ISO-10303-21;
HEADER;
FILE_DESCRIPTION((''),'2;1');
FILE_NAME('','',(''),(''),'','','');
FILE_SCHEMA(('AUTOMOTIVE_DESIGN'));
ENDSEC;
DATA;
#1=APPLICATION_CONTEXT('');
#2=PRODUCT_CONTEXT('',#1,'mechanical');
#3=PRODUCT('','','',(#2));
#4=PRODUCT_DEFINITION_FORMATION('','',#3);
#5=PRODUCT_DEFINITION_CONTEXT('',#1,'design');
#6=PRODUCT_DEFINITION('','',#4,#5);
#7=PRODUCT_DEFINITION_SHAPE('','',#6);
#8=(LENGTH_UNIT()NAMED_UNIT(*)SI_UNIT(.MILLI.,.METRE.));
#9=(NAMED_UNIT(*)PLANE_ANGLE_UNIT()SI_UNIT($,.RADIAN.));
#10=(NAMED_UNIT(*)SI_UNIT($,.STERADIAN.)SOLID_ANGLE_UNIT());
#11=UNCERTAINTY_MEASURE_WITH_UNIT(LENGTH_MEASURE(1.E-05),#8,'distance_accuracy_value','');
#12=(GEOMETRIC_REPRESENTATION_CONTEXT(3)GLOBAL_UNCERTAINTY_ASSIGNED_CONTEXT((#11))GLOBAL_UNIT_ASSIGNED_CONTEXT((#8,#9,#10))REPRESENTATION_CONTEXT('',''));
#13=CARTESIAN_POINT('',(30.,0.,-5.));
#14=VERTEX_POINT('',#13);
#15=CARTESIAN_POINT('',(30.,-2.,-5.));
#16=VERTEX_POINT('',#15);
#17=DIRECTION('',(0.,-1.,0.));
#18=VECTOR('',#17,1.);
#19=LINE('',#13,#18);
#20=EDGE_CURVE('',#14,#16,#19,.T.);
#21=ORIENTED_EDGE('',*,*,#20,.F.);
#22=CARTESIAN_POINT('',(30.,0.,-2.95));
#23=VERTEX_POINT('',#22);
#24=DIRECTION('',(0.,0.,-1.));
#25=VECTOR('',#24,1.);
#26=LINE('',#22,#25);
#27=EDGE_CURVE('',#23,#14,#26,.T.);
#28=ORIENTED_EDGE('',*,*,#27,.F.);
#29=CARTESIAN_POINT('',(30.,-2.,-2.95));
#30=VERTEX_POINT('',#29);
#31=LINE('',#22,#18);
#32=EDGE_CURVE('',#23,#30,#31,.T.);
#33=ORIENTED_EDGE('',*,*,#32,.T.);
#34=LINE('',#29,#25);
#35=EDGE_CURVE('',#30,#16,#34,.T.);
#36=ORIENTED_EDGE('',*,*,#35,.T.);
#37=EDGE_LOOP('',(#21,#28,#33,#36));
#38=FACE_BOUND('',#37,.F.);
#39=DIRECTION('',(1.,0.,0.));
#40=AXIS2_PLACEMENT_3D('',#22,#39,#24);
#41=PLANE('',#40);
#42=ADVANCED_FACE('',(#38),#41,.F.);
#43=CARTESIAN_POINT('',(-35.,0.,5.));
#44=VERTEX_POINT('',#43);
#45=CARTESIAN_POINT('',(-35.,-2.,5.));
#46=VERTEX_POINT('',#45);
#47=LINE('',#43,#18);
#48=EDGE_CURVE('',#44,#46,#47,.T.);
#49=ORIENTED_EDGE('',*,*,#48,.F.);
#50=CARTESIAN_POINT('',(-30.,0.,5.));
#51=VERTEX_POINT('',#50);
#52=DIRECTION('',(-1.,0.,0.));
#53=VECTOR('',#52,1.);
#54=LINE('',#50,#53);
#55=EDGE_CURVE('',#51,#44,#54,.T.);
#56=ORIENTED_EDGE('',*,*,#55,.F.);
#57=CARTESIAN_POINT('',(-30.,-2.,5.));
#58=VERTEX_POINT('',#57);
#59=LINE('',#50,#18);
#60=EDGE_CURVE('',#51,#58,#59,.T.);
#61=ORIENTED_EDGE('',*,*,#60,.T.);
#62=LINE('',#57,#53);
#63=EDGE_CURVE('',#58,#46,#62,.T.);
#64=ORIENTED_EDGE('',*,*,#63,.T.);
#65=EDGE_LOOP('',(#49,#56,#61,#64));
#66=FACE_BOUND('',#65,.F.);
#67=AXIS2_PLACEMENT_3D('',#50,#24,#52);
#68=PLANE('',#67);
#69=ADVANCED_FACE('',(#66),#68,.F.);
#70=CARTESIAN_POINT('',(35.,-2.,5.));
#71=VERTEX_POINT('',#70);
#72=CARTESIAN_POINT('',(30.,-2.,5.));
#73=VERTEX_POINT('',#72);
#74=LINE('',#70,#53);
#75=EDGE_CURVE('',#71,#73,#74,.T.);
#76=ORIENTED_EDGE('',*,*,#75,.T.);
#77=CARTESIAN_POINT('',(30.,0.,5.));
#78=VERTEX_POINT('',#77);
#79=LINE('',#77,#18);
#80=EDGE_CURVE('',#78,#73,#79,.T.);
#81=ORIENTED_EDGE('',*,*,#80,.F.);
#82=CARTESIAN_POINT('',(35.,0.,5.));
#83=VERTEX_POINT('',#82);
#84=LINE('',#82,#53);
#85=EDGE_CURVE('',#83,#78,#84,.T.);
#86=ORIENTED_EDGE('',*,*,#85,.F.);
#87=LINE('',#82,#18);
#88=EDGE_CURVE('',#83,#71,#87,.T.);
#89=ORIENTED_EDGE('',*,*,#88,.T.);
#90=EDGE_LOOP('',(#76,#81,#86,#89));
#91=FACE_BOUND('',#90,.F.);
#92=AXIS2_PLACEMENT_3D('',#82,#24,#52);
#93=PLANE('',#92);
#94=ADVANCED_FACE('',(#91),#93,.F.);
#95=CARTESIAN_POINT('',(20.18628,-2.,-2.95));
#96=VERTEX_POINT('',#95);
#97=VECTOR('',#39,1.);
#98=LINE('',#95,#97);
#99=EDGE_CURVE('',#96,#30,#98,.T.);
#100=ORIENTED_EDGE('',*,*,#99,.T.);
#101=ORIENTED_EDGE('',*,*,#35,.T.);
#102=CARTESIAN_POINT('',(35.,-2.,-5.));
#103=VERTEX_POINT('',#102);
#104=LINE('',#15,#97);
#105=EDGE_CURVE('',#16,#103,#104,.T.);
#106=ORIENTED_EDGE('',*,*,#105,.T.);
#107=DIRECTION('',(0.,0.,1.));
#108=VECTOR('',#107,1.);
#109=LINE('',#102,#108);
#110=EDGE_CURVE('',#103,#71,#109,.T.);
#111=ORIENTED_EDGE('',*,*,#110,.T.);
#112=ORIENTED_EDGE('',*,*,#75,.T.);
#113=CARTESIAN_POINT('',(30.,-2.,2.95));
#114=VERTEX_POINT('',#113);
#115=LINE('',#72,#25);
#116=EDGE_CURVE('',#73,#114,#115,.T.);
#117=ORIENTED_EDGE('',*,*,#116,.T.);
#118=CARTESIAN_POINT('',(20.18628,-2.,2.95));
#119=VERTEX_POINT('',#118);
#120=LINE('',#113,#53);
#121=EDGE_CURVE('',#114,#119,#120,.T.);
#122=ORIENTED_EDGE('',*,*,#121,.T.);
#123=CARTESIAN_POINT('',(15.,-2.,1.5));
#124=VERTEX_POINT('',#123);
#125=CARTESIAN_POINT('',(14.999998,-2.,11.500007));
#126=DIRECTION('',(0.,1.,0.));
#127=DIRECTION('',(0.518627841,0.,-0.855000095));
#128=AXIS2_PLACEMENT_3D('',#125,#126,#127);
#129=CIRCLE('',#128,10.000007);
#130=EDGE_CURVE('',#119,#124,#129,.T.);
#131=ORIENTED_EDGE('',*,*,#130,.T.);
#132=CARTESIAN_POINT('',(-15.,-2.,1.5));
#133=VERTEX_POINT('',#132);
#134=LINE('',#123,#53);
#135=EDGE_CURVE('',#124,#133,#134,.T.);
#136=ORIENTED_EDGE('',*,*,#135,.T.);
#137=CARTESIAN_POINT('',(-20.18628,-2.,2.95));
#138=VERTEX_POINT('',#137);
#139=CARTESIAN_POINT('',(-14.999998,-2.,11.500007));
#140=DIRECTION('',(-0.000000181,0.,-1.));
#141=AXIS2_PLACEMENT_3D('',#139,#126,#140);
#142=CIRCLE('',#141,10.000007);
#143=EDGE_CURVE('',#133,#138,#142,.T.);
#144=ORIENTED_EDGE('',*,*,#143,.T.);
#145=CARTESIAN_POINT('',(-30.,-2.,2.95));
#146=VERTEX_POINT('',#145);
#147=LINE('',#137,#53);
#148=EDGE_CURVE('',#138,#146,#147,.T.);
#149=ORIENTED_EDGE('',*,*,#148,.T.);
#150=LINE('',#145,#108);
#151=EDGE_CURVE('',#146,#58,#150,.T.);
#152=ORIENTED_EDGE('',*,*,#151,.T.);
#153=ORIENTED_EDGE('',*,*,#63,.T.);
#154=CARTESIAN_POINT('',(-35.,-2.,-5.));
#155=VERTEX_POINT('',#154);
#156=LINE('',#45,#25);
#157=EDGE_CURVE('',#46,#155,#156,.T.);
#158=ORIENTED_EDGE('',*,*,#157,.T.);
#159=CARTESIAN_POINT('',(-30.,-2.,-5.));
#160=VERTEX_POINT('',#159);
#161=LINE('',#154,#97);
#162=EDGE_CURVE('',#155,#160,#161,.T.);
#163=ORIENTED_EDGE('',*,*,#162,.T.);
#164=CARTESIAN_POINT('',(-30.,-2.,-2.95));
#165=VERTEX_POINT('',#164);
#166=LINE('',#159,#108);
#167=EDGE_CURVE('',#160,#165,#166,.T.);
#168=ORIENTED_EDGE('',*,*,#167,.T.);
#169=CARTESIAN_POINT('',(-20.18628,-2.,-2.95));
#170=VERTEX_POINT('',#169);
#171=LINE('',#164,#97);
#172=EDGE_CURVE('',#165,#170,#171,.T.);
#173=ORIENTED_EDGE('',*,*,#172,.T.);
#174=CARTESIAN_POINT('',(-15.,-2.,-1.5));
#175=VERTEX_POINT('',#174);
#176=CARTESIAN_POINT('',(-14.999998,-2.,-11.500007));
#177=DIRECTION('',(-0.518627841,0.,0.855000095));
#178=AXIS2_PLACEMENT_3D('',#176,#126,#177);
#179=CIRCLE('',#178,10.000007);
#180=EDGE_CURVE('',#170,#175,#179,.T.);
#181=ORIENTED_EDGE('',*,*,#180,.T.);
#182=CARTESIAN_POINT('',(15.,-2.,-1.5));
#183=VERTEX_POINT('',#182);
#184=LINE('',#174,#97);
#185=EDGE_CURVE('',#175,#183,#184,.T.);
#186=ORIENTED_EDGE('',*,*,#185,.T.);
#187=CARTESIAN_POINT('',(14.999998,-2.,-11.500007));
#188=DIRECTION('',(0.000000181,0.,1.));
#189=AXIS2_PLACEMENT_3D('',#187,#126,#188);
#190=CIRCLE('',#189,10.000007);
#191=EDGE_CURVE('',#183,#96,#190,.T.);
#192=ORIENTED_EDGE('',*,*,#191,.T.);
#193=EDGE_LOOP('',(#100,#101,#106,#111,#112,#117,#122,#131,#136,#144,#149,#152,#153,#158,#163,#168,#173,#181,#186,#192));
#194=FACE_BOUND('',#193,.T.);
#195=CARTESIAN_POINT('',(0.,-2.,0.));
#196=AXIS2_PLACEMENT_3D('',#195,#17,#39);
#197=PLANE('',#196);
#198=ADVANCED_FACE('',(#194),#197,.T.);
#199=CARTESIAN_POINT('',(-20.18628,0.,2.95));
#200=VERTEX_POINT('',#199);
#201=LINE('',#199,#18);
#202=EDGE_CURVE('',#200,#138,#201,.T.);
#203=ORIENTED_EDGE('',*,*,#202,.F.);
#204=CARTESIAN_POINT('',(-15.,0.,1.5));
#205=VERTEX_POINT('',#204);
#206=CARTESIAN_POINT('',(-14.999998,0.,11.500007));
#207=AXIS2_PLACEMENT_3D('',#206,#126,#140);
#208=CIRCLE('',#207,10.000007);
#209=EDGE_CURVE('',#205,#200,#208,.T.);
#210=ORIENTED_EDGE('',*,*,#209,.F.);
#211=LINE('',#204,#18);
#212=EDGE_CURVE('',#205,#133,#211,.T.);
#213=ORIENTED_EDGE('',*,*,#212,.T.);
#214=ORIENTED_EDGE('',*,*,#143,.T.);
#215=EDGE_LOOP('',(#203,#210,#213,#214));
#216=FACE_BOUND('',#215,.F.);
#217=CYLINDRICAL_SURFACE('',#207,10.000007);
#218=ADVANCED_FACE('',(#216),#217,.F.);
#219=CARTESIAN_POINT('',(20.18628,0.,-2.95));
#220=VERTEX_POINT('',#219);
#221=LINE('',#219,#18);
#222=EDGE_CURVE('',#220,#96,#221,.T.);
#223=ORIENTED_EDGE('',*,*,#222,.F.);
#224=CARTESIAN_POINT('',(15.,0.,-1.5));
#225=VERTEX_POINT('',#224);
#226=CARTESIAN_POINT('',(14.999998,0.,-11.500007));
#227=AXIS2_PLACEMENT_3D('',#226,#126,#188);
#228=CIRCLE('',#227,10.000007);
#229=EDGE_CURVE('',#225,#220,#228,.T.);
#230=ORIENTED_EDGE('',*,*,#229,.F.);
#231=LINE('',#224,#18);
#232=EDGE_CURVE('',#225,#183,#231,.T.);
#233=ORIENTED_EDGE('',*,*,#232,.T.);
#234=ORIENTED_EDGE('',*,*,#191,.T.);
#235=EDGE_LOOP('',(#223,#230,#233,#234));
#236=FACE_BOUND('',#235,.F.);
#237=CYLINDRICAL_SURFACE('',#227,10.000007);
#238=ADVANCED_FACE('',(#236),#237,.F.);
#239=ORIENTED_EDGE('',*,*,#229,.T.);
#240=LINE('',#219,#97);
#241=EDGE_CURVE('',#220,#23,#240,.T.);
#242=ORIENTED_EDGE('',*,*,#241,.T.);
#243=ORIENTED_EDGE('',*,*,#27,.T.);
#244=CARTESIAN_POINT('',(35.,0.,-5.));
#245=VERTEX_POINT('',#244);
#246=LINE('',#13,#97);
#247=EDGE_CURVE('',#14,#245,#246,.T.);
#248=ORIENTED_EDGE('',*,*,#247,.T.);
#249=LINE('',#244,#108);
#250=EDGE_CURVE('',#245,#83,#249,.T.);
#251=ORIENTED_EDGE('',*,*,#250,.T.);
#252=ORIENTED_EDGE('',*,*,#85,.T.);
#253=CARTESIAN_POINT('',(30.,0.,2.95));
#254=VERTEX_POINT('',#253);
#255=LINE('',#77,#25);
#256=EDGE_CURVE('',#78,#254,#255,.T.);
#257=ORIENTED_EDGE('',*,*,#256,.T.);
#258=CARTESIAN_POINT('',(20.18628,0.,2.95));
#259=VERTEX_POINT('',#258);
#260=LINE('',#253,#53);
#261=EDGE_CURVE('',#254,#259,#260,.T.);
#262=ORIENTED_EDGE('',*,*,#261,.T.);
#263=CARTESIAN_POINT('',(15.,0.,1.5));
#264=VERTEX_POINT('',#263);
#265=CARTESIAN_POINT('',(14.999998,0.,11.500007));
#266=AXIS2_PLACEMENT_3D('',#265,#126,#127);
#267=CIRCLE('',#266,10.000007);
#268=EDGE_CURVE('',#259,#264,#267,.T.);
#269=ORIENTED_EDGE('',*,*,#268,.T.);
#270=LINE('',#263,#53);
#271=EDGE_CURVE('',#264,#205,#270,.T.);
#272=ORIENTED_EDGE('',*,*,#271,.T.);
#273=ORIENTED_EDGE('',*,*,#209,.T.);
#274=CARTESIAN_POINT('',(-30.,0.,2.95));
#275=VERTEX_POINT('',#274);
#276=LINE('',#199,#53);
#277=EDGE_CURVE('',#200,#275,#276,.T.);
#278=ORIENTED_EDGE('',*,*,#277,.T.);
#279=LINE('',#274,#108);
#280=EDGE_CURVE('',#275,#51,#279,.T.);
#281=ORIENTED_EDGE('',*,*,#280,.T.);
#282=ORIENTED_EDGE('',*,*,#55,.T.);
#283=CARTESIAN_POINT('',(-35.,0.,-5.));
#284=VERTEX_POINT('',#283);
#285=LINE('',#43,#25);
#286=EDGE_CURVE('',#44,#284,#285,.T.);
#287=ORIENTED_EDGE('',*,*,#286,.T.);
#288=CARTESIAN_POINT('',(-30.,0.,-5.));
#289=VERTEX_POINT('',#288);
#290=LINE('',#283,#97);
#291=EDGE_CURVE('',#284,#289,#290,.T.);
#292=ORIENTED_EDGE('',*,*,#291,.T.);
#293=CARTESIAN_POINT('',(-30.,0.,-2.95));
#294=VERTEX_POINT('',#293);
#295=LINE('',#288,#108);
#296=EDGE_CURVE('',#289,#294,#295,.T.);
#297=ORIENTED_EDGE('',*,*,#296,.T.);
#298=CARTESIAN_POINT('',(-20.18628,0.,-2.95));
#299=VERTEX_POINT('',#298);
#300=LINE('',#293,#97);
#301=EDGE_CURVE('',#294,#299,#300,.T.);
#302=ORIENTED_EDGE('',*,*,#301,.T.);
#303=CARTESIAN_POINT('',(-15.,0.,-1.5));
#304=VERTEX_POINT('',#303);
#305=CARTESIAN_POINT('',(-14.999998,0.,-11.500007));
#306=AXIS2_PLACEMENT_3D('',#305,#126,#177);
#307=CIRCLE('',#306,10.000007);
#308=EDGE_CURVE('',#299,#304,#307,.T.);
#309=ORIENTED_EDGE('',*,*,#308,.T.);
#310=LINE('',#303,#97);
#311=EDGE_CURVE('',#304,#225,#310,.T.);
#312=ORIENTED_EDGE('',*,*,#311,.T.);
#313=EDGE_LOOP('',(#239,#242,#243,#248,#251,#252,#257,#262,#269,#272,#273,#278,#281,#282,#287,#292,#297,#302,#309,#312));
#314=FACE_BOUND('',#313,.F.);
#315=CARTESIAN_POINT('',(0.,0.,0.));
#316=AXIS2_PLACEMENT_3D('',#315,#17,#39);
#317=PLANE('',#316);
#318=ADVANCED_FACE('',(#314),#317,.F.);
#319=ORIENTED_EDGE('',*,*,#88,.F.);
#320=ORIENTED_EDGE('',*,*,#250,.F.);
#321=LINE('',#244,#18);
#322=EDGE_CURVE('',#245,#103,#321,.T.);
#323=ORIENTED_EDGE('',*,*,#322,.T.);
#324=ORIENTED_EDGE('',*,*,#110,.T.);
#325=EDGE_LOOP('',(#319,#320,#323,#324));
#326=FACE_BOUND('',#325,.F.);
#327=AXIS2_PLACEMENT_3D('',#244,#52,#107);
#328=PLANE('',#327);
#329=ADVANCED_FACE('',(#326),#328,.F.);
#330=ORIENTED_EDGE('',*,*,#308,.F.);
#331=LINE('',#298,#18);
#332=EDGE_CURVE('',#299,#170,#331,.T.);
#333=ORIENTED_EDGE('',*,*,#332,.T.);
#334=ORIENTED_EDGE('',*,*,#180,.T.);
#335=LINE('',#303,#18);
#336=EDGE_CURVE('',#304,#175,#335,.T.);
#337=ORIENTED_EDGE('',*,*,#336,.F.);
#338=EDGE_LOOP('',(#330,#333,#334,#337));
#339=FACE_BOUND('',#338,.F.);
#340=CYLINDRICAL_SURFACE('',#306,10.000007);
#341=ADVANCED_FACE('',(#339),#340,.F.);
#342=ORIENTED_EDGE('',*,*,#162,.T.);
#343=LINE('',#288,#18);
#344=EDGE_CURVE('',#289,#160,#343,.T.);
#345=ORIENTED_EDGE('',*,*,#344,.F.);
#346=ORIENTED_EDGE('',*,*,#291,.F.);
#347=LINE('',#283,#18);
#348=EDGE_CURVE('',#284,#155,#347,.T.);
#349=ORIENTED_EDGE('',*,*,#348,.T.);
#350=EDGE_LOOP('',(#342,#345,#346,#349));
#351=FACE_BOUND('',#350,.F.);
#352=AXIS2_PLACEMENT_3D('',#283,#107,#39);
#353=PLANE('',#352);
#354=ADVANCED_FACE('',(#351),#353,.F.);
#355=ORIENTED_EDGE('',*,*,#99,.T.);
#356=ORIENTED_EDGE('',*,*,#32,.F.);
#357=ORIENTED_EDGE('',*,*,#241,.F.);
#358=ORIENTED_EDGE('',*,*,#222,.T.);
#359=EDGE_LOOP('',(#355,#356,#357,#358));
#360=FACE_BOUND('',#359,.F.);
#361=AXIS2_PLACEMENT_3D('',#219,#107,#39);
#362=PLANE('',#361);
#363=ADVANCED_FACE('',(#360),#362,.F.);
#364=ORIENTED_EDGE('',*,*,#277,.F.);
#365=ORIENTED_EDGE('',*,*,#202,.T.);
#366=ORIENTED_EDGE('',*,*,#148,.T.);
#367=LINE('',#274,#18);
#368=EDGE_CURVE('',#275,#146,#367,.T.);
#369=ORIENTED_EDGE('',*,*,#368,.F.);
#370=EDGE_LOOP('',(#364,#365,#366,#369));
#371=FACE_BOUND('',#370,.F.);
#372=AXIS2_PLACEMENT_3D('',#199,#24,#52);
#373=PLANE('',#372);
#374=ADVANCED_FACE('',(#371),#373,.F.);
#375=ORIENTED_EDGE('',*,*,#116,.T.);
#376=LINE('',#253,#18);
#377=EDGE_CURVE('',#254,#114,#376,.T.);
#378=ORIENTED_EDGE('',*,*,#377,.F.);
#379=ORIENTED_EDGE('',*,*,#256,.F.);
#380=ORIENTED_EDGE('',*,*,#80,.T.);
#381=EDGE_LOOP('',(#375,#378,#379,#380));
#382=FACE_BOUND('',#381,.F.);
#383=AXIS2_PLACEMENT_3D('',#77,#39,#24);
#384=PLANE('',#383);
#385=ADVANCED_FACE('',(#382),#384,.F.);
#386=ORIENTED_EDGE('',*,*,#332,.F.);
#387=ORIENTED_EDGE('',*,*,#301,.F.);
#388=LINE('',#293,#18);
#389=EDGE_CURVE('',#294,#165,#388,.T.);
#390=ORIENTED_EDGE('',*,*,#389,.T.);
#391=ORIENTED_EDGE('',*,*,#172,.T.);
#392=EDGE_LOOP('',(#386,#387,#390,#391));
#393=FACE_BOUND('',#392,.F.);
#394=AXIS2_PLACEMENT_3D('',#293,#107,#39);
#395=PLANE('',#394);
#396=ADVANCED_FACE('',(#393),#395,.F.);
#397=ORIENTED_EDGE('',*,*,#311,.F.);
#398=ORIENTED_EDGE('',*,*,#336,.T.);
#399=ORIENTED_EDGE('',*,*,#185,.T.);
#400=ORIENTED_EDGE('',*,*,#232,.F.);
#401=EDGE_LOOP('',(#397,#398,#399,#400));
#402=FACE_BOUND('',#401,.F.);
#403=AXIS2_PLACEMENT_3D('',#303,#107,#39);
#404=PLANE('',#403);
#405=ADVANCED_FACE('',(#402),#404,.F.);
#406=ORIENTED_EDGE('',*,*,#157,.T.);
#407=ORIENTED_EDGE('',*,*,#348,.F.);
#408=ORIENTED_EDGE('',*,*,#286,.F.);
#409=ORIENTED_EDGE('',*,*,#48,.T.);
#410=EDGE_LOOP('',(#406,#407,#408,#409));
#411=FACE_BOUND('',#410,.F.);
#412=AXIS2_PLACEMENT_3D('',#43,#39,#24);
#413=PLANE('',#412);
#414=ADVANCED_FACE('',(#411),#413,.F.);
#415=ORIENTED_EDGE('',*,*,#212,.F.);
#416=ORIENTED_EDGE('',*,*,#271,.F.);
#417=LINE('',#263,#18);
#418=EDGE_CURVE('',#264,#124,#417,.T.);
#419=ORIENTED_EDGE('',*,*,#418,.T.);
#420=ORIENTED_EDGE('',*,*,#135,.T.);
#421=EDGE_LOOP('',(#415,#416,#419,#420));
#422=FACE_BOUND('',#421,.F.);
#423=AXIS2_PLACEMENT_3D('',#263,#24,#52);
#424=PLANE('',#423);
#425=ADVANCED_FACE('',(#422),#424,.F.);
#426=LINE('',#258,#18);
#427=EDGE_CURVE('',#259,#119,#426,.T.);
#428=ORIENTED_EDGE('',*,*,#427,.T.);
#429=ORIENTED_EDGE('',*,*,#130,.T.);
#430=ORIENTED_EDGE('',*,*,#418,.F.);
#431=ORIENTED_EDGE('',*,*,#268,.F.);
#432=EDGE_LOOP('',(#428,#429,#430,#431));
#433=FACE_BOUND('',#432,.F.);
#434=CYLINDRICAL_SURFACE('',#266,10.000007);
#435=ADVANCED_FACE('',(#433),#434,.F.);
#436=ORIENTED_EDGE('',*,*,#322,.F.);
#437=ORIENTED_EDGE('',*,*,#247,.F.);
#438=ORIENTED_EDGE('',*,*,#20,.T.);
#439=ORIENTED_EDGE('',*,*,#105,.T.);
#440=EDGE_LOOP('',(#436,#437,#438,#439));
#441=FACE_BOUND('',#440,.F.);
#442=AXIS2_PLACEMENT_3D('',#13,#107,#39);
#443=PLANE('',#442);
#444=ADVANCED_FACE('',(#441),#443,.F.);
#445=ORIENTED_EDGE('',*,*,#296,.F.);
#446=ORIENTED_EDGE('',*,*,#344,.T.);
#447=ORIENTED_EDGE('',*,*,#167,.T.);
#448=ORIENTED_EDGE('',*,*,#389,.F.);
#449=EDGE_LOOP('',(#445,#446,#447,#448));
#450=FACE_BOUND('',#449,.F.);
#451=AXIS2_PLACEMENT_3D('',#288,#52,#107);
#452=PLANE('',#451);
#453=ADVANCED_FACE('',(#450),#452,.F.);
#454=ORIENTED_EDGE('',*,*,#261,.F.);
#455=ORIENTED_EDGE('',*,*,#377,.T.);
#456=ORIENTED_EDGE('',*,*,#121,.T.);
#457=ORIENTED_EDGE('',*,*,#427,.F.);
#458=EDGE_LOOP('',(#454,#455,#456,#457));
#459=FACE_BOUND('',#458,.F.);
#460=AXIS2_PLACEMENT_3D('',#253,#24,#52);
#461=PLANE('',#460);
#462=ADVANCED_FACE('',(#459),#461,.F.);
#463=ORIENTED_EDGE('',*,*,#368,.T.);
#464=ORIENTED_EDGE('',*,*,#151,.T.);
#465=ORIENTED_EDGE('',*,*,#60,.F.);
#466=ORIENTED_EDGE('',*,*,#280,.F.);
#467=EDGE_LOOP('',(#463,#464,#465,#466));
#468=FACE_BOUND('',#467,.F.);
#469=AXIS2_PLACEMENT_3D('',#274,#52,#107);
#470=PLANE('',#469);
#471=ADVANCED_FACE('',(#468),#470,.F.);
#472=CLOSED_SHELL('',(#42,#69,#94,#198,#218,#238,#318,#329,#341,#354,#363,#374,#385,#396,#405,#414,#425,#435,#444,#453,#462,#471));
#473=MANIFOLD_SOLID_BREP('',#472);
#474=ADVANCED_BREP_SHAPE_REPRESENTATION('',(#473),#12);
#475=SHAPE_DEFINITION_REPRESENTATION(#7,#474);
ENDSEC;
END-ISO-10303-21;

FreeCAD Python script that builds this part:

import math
import FreeCAD as App
import Part
import Sketcher
from FreeCAD import Vector

doc = App.newDocument("Part")
body = doc.addObject("PartDesign::Body", "Body")

sketch1 = body.newObject("Sketcher::SketchObject", "Sketch")
sketch1.AttachmentSupport = (doc.getObject("XZ_Plane"), [""])
sketch1.MapMode = "FlatFace"
sketch1.addGeometry([
    Part.LineSegment(Vector(35, -5, 0), Vector(35, 5, 0)),
    Part.LineSegment(Vector(35, 5, 0), Vector(30, 5, 0)),
    Part.LineSegment(Vector(30, 5, 0), Vector(30, 3, 0)),
    Part.LineSegment(Vector(30, 3, 0), Vector(20.2, 3, 0)),
    Part.ArcOfCircle(Part.Circle(Vector(15, 11.5, 0), Vector(0, 0, 1), 10), math.radians(-90), math.radians(-59)),
    Part.LineSegment(Vector(15, 1.5, 0), Vector(-15, 1.5, 0)),
    Part.ArcOfCircle(Part.Circle(Vector(-15, 11.5, 0), Vector(0, 0, 1), 10), math.radians(-121), math.radians(-90)),
    Part.LineSegment(Vector(-20.2, 3, 0), Vector(-30, 3, 0)),
    Part.LineSegment(Vector(-30, 3, 0), Vector(-30, 5, 0)),
    Part.LineSegment(Vector(-30, 5, 0), Vector(-35, 5, 0)),
    Part.LineSegment(Vector(-35, 5, 0), Vector(-35, -5, 0)),
    Part.LineSegment(Vector(-35, -5, 0), Vector(-30, -5, 0)),
    Part.LineSegment(Vector(-30, -5, 0), Vector(-30, -3, 0)),
    Part.LineSegment(Vector(-30, -3, 0), Vector(-20.2, -3, 0)),
    Part.ArcOfCircle(Part.Circle(Vector(-15, -11.5, 0), Vector(0, 0, 1), 10), math.radians(90), math.radians(121)),
    Part.LineSegment(Vector(-15, -1.5, 0), Vector(15, -1.5, 0)),
    Part.ArcOfCircle(Part.Circle(Vector(15, -11.5, 0), Vector(0, 0, 1), 10), math.radians(59), math.radians(90)),
    Part.LineSegment(Vector(20.2, -3, 0), Vector(30, -3, 0)),
    Part.LineSegment(Vector(30, -3, 0), Vector(30, -5, 0)),
    Part.LineSegment(Vector(30, -5, 0), Vector(35, -5, 0)),
], False)
sketch1.addConstraint([
    Sketcher.Constraint("Coincident", 0, 2, 1, 1),
    Sketcher.Constraint("Coincident", 1, 2, 2, 1),
    Sketcher.Constraint("Coincident", 2, 2, 3, 1),
    Sketcher.Constraint("Coincident", 3, 2, 4, 2),
    Sketcher.Constraint("Tangent", 4, 1, 5, 1),
    Sketcher.Constraint("Tangent", 5, 2, 6, 2),
    Sketcher.Constraint("Coincident", 6, 1, 7, 1),
    Sketcher.Constraint("Coincident", 7, 2, 8, 1),
    Sketcher.Constraint("Coincident", 8, 2, 9, 1),
    Sketcher.Constraint("Coincident", 9, 2, 10, 1),
    Sketcher.Constraint("Coincident", 10, 2, 11, 1),
    Sketcher.Constraint("Coincident", 11, 2, 12, 1),
    Sketcher.Constraint("Coincident", 12, 2, 13, 1),
    Sketcher.Constraint("Coincident", 13, 2, 14, 2),
    Sketcher.Constraint("Tangent", 14, 1, 15, 1),
    Sketcher.Constraint("Tangent", 15, 2, 16, 2),
    Sketcher.Constraint("Coincident", 16, 1, 17, 1),
    Sketcher.Constraint("Coincident", 17, 2, 18, 1),
    Sketcher.Constraint("Coincident", 18, 2, 19, 1),
    Sketcher.Constraint("Coincident", 19, 2, 0, 1),
    Sketcher.Constraint("Vertical", 0),
    Sketcher.Constraint("Horizontal", 1),
    Sketcher.Constraint("Vertical", 2),
    Sketcher.Constraint("Horizontal", 3),
    Sketcher.Constraint("Horizontal", 5),
    Sketcher.Constraint("Horizontal", 7),
    Sketcher.Constraint("Vertical", 8),
    Sketcher.Constraint("Horizontal", 9),
    Sketcher.Constraint("Vertical", 10),
    Sketcher.Constraint("Horizontal", 11),
    Sketcher.Constraint("Vertical", 12),
    Sketcher.Constraint("Horizontal", 13),
    Sketcher.Constraint("Horizontal", 15),
    Sketcher.Constraint("Horizontal", 17),
    Sketcher.Constraint("Vertical", 18),
    Sketcher.Constraint("Horizontal", 19),
    Sketcher.Constraint("Equal", 4, 6),
    Sketcher.Constraint("Equal", 6, 14),
    Sketcher.Constraint("Equal", 14, 16),
    Sketcher.Constraint("Symmetric", 4, 3, 14, 3, -1, 1),
    Sketcher.Constraint("Symmetric", 0, 2, 10, 2, -1, 1),
    Sketcher.Constraint("Symmetric", 2, 2, 12, 2, -1, 1),
    Sketcher.Constraint("Symmetric", 6, 1, 16, 1, -1, 1),
    Sketcher.Constraint("Symmetric", 8, 2, 18, 2, -1, 1),
    Sketcher.Constraint("Symmetric", 3, 2, 6, 1, -2),
    Sketcher.Constraint("Symmetric", 1, 2, 8, 2, -2),
    Sketcher.Constraint("DistanceX", 1, 2, 1, 1, 5.0),
    Sketcher.Constraint("DistanceX", 5, 2, 5, 1, 30.0),
    Sketcher.Constraint("DistanceY", 0, 1, 0, 2, 10.0),
    Sketcher.Constraint("DistanceX", -1, 1, 0, 2, 35.0),
    Sketcher.Constraint("DistanceY", 14, 1, 5, 2, 3.0),
    Sketcher.Constraint("DistanceY", 2, 2, 2, 1, 2.05),
    Sketcher.Constraint("Radius", 4, 10.000007),
])
pad1 = body.newObject("PartDesign::Pad", "Pad")
pad1.Profile = sketch1
pad1.Length = 2

doc.recompute()
